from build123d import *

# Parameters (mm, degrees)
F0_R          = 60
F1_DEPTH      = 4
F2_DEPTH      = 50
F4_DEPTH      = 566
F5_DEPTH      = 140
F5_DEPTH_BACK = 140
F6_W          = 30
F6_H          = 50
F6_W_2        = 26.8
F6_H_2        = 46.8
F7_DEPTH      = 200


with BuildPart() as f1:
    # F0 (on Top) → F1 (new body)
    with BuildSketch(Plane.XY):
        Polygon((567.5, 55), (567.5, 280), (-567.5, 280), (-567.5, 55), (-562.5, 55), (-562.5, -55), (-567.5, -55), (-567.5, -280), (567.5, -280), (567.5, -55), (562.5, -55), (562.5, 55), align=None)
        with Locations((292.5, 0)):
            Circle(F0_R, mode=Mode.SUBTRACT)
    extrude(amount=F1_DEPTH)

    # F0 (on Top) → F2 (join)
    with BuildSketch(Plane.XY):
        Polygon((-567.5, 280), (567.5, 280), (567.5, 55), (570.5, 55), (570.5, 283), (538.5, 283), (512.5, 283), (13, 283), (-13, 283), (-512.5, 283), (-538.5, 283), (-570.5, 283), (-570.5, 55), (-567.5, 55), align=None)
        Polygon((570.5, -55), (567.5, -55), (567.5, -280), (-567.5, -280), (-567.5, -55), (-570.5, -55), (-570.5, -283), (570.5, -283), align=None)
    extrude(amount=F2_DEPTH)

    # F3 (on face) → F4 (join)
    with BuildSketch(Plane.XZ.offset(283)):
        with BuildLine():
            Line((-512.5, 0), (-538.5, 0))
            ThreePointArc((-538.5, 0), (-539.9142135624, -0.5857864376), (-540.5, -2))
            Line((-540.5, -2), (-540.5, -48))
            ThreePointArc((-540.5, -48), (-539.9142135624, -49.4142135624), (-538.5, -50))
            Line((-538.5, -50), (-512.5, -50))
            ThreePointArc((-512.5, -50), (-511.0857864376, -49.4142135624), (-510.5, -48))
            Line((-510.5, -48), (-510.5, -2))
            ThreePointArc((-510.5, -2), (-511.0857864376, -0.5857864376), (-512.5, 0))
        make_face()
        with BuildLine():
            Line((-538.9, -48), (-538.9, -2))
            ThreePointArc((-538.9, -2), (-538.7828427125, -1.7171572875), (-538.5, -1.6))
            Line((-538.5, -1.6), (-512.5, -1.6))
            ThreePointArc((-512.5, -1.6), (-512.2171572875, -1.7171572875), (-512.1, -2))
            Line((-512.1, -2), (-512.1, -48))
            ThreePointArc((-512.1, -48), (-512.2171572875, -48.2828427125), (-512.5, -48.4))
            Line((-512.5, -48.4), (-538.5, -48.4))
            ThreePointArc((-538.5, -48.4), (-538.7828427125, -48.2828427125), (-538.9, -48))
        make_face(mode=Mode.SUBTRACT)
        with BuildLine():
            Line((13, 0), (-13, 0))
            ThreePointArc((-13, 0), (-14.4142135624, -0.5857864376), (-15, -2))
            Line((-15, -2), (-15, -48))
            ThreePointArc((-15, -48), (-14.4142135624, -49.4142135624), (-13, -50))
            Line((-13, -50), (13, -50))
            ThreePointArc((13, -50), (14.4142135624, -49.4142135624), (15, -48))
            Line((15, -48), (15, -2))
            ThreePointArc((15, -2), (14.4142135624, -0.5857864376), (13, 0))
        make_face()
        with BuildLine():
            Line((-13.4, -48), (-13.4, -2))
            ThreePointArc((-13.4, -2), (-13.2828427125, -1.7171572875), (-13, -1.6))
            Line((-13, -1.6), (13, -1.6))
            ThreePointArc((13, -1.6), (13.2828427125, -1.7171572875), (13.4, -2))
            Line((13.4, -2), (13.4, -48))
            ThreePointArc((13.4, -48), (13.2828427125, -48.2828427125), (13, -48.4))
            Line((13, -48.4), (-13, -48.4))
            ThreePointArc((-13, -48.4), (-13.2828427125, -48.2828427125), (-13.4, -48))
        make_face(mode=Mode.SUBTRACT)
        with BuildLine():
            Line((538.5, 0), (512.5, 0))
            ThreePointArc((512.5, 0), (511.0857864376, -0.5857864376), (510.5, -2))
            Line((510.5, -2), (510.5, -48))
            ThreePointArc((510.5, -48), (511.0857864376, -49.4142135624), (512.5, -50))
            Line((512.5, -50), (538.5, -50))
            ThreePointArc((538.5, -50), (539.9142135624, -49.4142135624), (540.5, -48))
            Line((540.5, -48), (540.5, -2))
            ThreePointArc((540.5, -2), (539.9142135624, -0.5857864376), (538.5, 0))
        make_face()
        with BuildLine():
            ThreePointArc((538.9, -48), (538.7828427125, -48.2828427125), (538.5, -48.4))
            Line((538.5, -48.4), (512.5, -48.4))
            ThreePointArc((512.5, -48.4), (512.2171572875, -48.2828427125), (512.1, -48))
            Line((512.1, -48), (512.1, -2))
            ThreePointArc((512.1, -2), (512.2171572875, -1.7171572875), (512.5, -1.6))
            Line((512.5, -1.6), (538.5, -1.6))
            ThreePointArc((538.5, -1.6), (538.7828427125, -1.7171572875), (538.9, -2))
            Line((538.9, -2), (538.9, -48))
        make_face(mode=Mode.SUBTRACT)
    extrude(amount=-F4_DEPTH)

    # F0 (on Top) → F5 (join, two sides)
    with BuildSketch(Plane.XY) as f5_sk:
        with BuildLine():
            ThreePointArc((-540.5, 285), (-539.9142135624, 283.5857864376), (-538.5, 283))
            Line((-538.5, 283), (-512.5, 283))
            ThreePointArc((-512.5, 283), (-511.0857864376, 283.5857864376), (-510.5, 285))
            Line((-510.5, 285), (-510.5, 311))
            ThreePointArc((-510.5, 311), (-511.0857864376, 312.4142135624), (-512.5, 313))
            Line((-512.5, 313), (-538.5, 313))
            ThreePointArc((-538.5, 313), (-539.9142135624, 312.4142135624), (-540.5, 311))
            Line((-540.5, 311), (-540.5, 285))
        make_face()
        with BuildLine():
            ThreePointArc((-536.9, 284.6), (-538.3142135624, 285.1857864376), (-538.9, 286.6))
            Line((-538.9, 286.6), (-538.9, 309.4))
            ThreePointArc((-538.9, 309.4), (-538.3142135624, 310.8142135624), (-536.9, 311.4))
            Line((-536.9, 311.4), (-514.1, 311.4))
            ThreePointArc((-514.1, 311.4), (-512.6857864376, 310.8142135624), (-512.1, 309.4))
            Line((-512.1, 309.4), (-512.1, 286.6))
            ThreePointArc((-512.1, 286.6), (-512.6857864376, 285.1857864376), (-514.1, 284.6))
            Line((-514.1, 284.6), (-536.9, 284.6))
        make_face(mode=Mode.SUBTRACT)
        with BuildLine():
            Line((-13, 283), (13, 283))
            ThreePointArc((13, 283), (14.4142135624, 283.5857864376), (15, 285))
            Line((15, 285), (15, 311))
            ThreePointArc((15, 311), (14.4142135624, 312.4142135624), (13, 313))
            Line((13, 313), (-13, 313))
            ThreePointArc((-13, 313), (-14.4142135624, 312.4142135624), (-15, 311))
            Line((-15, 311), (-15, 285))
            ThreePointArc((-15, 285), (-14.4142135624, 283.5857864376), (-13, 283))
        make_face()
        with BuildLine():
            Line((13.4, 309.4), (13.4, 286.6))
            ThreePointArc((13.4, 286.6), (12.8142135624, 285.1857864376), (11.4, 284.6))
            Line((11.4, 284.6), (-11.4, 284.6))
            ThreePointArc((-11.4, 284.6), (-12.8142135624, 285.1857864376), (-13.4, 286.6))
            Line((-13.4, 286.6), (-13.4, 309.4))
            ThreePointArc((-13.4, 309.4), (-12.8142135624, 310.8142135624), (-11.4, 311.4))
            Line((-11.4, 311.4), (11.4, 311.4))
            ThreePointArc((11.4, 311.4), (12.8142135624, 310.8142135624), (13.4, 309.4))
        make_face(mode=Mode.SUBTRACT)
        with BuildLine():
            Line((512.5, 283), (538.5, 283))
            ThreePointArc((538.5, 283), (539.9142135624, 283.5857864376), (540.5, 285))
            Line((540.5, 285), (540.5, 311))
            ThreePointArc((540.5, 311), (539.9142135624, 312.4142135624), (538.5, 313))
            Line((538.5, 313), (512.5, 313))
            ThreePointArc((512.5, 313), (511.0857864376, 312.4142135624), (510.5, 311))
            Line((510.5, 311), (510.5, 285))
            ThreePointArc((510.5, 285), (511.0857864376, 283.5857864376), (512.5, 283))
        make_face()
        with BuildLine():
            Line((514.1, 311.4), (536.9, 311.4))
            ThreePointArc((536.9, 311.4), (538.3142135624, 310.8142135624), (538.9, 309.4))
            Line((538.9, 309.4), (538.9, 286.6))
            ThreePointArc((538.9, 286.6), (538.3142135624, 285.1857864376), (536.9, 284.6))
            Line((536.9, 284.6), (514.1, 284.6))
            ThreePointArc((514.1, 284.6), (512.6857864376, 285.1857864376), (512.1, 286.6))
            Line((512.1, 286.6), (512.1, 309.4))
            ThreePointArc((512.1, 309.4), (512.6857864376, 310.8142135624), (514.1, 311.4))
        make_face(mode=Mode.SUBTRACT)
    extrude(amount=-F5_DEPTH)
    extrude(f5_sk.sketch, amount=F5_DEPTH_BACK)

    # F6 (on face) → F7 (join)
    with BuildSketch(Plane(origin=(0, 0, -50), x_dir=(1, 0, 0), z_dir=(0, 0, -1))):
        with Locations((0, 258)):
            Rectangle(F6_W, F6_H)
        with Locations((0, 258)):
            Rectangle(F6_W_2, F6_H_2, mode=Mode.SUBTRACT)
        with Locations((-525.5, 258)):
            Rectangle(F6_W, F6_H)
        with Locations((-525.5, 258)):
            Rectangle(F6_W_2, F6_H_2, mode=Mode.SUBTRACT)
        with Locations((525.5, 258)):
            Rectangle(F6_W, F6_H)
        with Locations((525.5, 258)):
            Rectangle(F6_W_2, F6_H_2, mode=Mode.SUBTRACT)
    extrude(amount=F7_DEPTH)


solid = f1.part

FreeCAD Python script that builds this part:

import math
import FreeCAD as App
import Part
import Sketcher
from FreeCAD import Vector
Q = App.Units.Quantity

doc = App.newDocument("Part")
body = doc.addObject("PartDesign::Body", "Body")

# Sketch on XY plane
sketch1 = body.newObject("Sketcher::SketchObject", "Sketch")
sketch1.AttachmentSupport = (doc.getObject("XY_Plane"), [""])
sketch1.MapMode = "FlatFace"
sketch1.addGeometry(Part.LineSegment(Vector(568, 55, 0), Vector(568, 280, 0)), False)
sketch1.addGeometry(Part.LineSegment(Vector(568, 280, 0), Vector(-568, 280, 0)), False)
sketch1.addGeometry(Part.LineSegment(Vector(-568, 280, 0), Vector(-568, 55, 0)), False)
sketch1.addGeometry(Part.LineSegment(Vector(-568, 55, 0), Vector(-562, 55, 0)), False)
sketch1.addGeometry(Part.LineSegment(Vector(-562, 55, 0), Vector(-562, -55, 0)), False)
sketch1.addGeometry(Part.LineSegment(Vector(-562, -55, 0), Vector(-568, -55, 0)), False)
sketch1.addGeometry(Part.LineSegment(Vector(-568, -55, 0), Vector(-568, -280, 0)), False)
sketch1.addGeometry(Part.LineSegment(Vector(-568, -280, 0), Vector(568, -280, 0)), False)
sketch1.addGeometry(Part.LineSegment(Vector(568, -280, 0), Vector(568, -55, 0)), False)
sketch1.addGeometry(Part.LineSegment(Vector(568, -55, 0), Vector(562, -55, 0)), False)
sketch1.addGeometry(Part.LineSegment(Vector(562, -55, 0), Vector(562, 55, 0)), False)
sketch1.addGeometry(Part.LineSegment(Vector(562, 55, 0), Vector(568, 55, 0)), False)
sketch1.addGeometry(Part.Circle(Vector(292, 0, 0), Vector(0, 0, 1), 60), False)
sketch1.addConstraint(Sketcher.Constraint("Coincident", 0, 2, 1, 1))
sketch1.addConstraint(Sketcher.Constraint("Coincident", 1, 2, 2, 1))
sketch1.addConstraint(Sketcher.Constraint("Coincident", 2, 2, 3, 1))
sketch1.addConstraint(Sketcher.Constraint("Coincident", 3, 2, 4, 1))
sketch1.addConstraint(Sketcher.Constraint("Coincident", 4, 2, 5, 1))
sketch1.addConstraint(Sketcher.Constraint("Coincident", 5, 2, 6, 1))
sketch1.addConstraint(Sketcher.Constraint("Coincident", 6, 2, 7, 1))
sketch1.addConstraint(Sketcher.Constraint("Coincident", 7, 2, 8, 1))
sketch1.addConstraint(Sketcher.Constraint("Coincident", 8, 2, 9, 1))
sketch1.addConstraint(Sketcher.Constraint("Coincident", 9, 2, 10, 1))
sketch1.addConstraint(Sketcher.Constraint("Coincident", 10, 2, 11, 1))
sketch1.addConstraint(Sketcher.Constraint("Coincident", 11, 2, 0, 1))
sketch1.addConstraint(Sketcher.Constraint("Vertical", 0))
sketch1.addConstraint(Sketcher.Constraint("Horizontal", 1))
sketch1.addConstraint(Sketcher.Constraint("Vertical", 2))
sketch1.addConstraint(Sketcher.Constraint("Horizontal", 3))
sketch1.addConstraint(Sketcher.Constraint("Vertical", 4))
sketch1.addConstraint(Sketcher.Constraint("Horizontal", 5))
sketch1.addConstraint(Sketcher.Constraint("Vertical", 6))
sketch1.addConstraint(Sketcher.Constraint("Horizontal", 7))
sketch1.addConstraint(Sketcher.Constraint("Vertical", 8))
sketch1.addConstraint(Sketcher.Constraint("Horizontal", 9))
sketch1.addConstraint(Sketcher.Constraint("Vertical", 10))
sketch1.addConstraint(Sketcher.Constraint("Horizontal", 11))
sketch1.addConstraint(Sketcher.Constraint("Symmetric", 0, 2, 6, 2, -1, 1))
sketch1.addConstraint(Sketcher.Constraint("Symmetric", 2, 2, 8, 2, -1, 1))
sketch1.addConstraint(Sketcher.Constraint("Symmetric", 4, 2, 10, 2, -1, 1))
sketch1.addConstraint(Sketcher.Constraint("Symmetric", 5, 2, 8, 2, -2))
sketch1.addConstraint(Sketcher.Constraint("PointOnObject", 12, 3, -1))
sketch1.addConstraint(Sketcher.Constraint("Diameter", 12, Q("120 mm")))
sketch1.addConstraint(Sketcher.Constraint("DistanceX", 1, 2, 1, 1, Q("1135 mm")))
sketch1.addConstraint(Sketcher.Constraint("DistanceX", 3, 1, 3, 2, Q("5 mm")))
sketch1.addConstraint(Sketcher.Constraint("DistanceY", 0, 1, 0, 2, Q("225 mm")))
sketch1.addConstraint(Sketcher.Constraint("DistanceY", 4, 2, 4, 1, Q("110 mm")))
sketch1.addConstraint(Sketcher.Constraint("DistanceX", 12, 3, 0, 2, Q("275 mm")))
pad1 = body.newObject("PartDesign::Pad", "Pad")
pad1.Profile = sketch1
pad1.Length = 4

# Sketch on XY plane
sketch2 = body.newObject("Sketcher::SketchObject", "Sketch001")
sketch2.AttachmentSupport = (doc.getObject("XY_Plane"), [""])
sketch2.MapMode = "FlatFace"
sketch2.addGeometry(Part.LineSegment(Vector(-567.5, 280, 0), Vector(567.5, 280, 0)), False)
sketch2.addGeometry(Part.LineSegment(Vector(567.5, 280, 0), Vector(567.5, 55, 0)), False)
sketch2.addGeometry(Part.LineSegment(Vector(567.5, 55, 0), Vector(570.5, 55, 0)), False)
sketch2.addGeometry(Part.LineSegment(Vector(570.5, 55, 0), Vector(570.5, 283, 0)), False)
sketch2.addGeometry(Part.LineSegment(Vector(570.5, 283, 0), Vector(-570.5, 283, 0)), False)
sketch2.addGeometry(Part.LineSegment(Vector(-570.5, 283, 0), Vector(-570.5, 55, 0)), False)
sketch2.addGeometry(Part.LineSegment(Vector(-570.5, 55, 0), Vector(-567.5, 55, 0)), False)
sketch2.addGeometry(Part.LineSegment(Vector(-567.5, 55, 0), Vector(-567.5, 280, 0)), False)
sketch2.addGeometry(Part.LineSegment(Vector(570.5, -55, 0), Vector(567.5, -55, 0)), False)
sketch2.addGeometry(Part.LineSegment(Vector(567.5, -55, 0), Vector(567.5, -280, 0)), False)
sketch2.addGeometry(Part.LineSegment(Vector(567.5, -280, 0), Vector(-567.5, -280, 0)), False)
sketch2.addGeometry(Part.LineSegment(Vector(-567.5, -280, 0), Vector(-567.5, -55, 0)), False)
sketch2.addGeometry(Part.LineSegment(Vector(-567.5, -55, 0), Vector(-570.5, -55, 0)), False)
sketch2.addGeometry(Part.LineSegment(Vector(-570.5, -55, 0), Vector(-570.5, -283, 0)), False)
sketch2.addGeometry(Part.LineSegment(Vector(-570.5, -283, 0), Vector(570.5, -283, 0)), False)
sketch2.addGeometry(Part.LineSegment(Vector(570.5, -283, 0), Vector(570.5, -55, 0)), False)
sketch2.addConstraint(Sketcher.Constraint("Coincident", 0, 2, 1, 1))
sketch2.addConstraint(Sketcher.Constraint("Coincident", 1, 2, 2, 1))
sketch2.addConstraint(Sketcher.Constraint("Coincident", 2, 2, 3, 1))
sketch2.addConstraint(Sketcher.Constraint("Coincident", 3, 2, 4, 1))
sketch2.addConstraint(Sketcher.Constraint("Coincident", 4, 2, 5, 1))
sketch2.addConstraint(Sketcher.Constraint("Coincident", 5, 2, 6, 1))
sketch2.addConstraint(Sketcher.Constraint("Coincident", 6, 2, 7, 1))
sketch2.addConstraint(Sketcher.Constraint("Coincident", 7, 2, 0, 1))
sketch2.addConstraint(Sketcher.Constraint("Coincident", 8, 2, 9, 1))
sketch2.addConstraint(Sketcher.Constraint("Coincident", 9, 2, 10, 1))
sketch2.addConstraint(Sketcher.Constraint("Coincident", 10, 2, 11, 1))
sketch2.addConstraint(Sketcher.Constraint("Coincident", 11, 2, 12, 1))
sketch2.addConstraint(Sketcher.Constraint("Coincident", 12, 2, 13, 1))
sketch2.addConstraint(Sketcher.Constraint("Coincident", 13, 2, 14, 1))
sketch2.addConstraint(Sketcher.Constraint("Coincident", 14, 2, 15, 1))
sketch2.addConstraint(Sketcher.Constraint("Coincident", 15, 2, 8, 1))
sketch2.addConstraint(Sketcher.Constraint("Horizontal", 0))
sketch2.addConstraint(Sketcher.Constraint("Vertical", 1))
sketch2.addConstraint(Sketcher.Constraint("Horizontal", 2))
sketch2.addConstraint(Sketcher.Constraint("Vertical", 3))
sketch2.addConstraint(Sketcher.Constraint("Horizontal", 4))
sketch2.addConstraint(Sketcher.Constraint("Vertical", 5))
sketch2.addConstraint(Sketcher.Constraint("Horizontal", 6))
sketch2.addConstraint(Sketcher.Constraint("Vertical", 7))
sketch2.addConstraint(Sketcher.Constraint("Horizontal", 8))
sketch2.addConstraint(Sketcher.Constraint("Vertical", 9))
sketch2.addConstraint(Sketcher.Constraint("Horizontal", 10))
sketch2.addConstraint(Sketcher.Constraint("Vertical", 11))
sketch2.addConstraint(Sketcher.Constraint("Horizontal", 12))
sketch2.addConstraint(Sketcher.Constraint("Vertical", 13))
sketch2.addConstraint(Sketcher.Constraint("Horizontal", 14))
sketch2.addConstraint(Sketcher.Constraint("Vertical", 15))
sketch2.addConstraint(Sketcher.Constraint("Symmetric", 6, 2, 8, 2, -1, 1))
sketch2.addConstraint(Sketcher.Constraint("Symmetric", 0, 2, 10, 2, -1, 1))
sketch2.addConstraint(Sketcher.Constraint("Symmetric", 2, 2, 12, 2, -1, 1))
sketch2.addConstraint(Sketcher.Constraint("Symmetric", 4, 2, 14, 2, -1, 1))
sketch2.addConstraint(Sketcher.Constraint("Symmetric", 2, 2, 5, 2, -2))
sketch2.addConstraint(Sketcher.Constraint("Vertical", 1, 2, 8, 2))
sketch2.addConstraint(Sketcher.Constraint("DistanceX", 0, 1, 0, 2, Q("1135 mm")))
sketch2.addConstraint(Sketcher.Constraint("DistanceX", 2, 1, 2, 2, Q("3 mm")))
sketch2.addConstraint(Sketcher.Constraint("DistanceY", 1, 2, 1, 1, Q("225 mm")))
sketch2.addConstraint(Sketcher.Constraint("DistanceY", 3, 1, 3, 2, Q("228 mm")))
sketch2.addConstraint(Sketcher.Constraint("DistanceY", -1, 1, 0, 2, Q("280 mm")))
pad2 = body.newObject("PartDesign::Pad", "Pad001")
pad2.Profile = sketch2
pad2.Length = 50

# Sketch on XZ plane
sketch3 = body.newObject("Sketcher::SketchObject", "Sketch002")
sketch3.AttachmentSupport = (doc.getObject("XZ_Plane"), [""])
sketch3.MapMode = "FlatFace"
sketch3.AttachmentOffset = App.Placement(Vector(0, 0, 283), App.Rotation())
sketch3.addGeometry(Part.LineSegment(Vector(-512.5, 0, 0), Vector(-538.5, 0, 0)), False)
sketch3.addGeometry(Part.ArcOfCircle(Part.Circle(Vector(-538.5, -2, 0), Vector(0, 0, 1), 2), math.radians(90), math.radians(180)), False)
sketch3.addGeometry(Part.LineSegment(Vector(-540.5, -2, 0), Vector(-540.5, -48, 0)), False)
sketch3.addGeometry(Part.ArcOfCircle(Part.Circle(Vector(-538.5, -48, 0), Vector(0, 0, 1), 2), math.radians(180), math.radians(270)), False)
sketch3.addGeometry(Part.LineSegment(Vector(-538.5, -50, 0), Vector(-512.5, -50, 0)), False)
sketch3.addGeometry(Part.ArcOfCircle(Part.Circle(Vector(-512.5, -48, 0), Vector(0, 0, 1), 2), math.radians(-90), math.radians(0)), False)
sketch3.addGeometry(Part.LineSegment(Vector(-510.5, -48, 0), Vector(-510.5, -2, 0)), False)
sketch3.addGeometry(Part.ArcOfCircle(Part.Circle(Vector(-512.5, -2, 0), Vector(0, 0, 1), 2), math.radians(0), math.radians(90)), False)
sketch3.addGeometry(Part.ArcOfCircle(Part.Circle(Vector(-538.5, -48, 0), Vector(0, 0, 1), 0.4), math.radians(180), math.radians(270)), False)
sketch3.addGeometry(Part.LineSegment(Vector(-538.9, -48, 0), Vector(-538.9, -2, 0)), False)
sketch3.addGeometry(Part.ArcOfCircle(Part.Circle(Vector(-538.5, -2, 0), Vector(0, 0, 1), 0.4), math.radians(90), math.radians(180)), False)
sketch3.addGeometry(Part.LineSegment(Vector(-538.5, -1.6, 0), Vector(-512.5, -1.6, 0)), False)
sketch3.addGeometry(Part.ArcOfCircle(Part.Circle(Vector(-512.5, -2, 0), Vector(0, 0, 1), 0.4), math.radians(0), math.radians(90)), False)
sketch3.addGeometry(Part.LineSegment(Vector(-512.1, -2, 0), Vector(-512.1, -48, 0)), False)
sketch3.addGeometry(Part.ArcOfCircle(Part.Circle(Vector(-512.5, -48, 0), Vector(0, 0, 1), 0.4), math.radians(-90), math.radians(0)), False)
sketch3.addGeometry(Part.LineSegment(Vector(-512.5, -48.4, 0), Vector(-538.5, -48.4, 0)), False)
sketch3.addGeometry(Part.LineSegment(Vector(13, 0, 0), Vector(-13, 0, 0)), False)
sketch3.addGeometry(Part.ArcOfCircle(Part.Circle(Vector(-13, -2, 0), Vector(0, 0, 1), 2), math.radians(90), math.radians(180)), False)
sketch3.addGeometry(Part.LineSegment(Vector(-15, -2, 0), Vector(-15, -48, 0)), False)
sketch3.addGeometry(Part.ArcOfCircle(Part.Circle(Vector(-13, -48, 0), Vector(0, 0, 1), 2), math.radians(180), math.radians(270)), False)
sketch3.addGeometry(Part.LineSegment(Vector(-13, -50, 0), Vector(13, -50, 0)), False)
sketch3.addGeometry(Part.ArcOfCircle(Part.Circle(Vector(13, -48, 0), Vector(0, 0, 1), 2), math.radians(-90), math.radians(0)), False)
sketch3.addGeometry(Part.LineSegment(Vector(15, -48, 0), Vector(15, -2, 0)), False)
sketch3.addGeometry(Part.ArcOfCircle(Part.Circle(Vector(13, -2, 0), Vector(0, 0, 1), 2), math.radians(0), math.radians(90)), False)
sketch3.addGeometry(Part.ArcOfCircle(Part.Circle(Vector(-13, -48, 0), Vector(0, 0, 1), 0.4), math.radians(180), math.radians(270)), False)
sketch3.addGeometry(Part.LineSegment(Vector(-13.4, -48, 0), Vector(-13.4, -2, 0)), False)
sketch3.addGeometry(Part.ArcOfCircle(Part.Circle(Vector(-13, -2, 0), Vector(0, 0, 1), 0.4), math.radians(90), math.radians(180)), False)
sketch3.addGeometry(Part.LineSegment(Vector(-13, -1.6, 0), Vector(13, -1.6, 0)), False)
sketch3.addGeometry(Part.ArcOfCircle(Part.Circle(Vector(13, -2, 0), Vector(0, 0, 1), 0.4), math.radians(0), math.radians(90)), False)
sketch3.addGeometry(Part.LineSegment(Vector(13.4, -2, 0), Vector(13.4, -48, 0)), False)
sketch3.addGeometry(Part.ArcOfCircle(Part.Circle(Vector(13, -48, 0), Vector(0, 0, 1), 0.4), math.radians(-90), math.radians(0)), False)
sketch3.addGeometry(Part.LineSegment(Vector(13, -48.4, 0), Vector(-13, -48.4, 0)), False)
sketch3.addGeometry(Part.LineSegment(Vector(538.5, 0, 0), Vector(512.5, 0, 0)), False)
sketch3.addGeometry(Part.ArcOfCircle(Part.Circle(Vector(512.5, -2, 0), Vector(0, 0, 1), 2), math.radians(90), math.radians(180)), False)
sketch3.addGeometry(Part.LineSegment(Vector(510.5, -2, 0), Vector(510.5, -48, 0)), False)
sketch3.addGeometry(Part.ArcOfCircle(Part.Circle(Vector(512.5, -48, 0), Vector(0, 0, 1), 2), math.radians(180), math.radians(270)), False)
sketch3.addGeometry(Part.LineSegment(Vector(512.5, -50, 0), Vector(538.5, -50, 0)), False)
sketch3.addGeometry(Part.ArcOfCircle(Part.Circle(Vector(538.5, -48, 0), Vector(0, 0, 1), 2), math.radians(-90), math.radians(0)), False)
sketch3.addGeometry(Part.LineSegment(Vector(540.5, -48, 0), Vector(540.5, -2, 0)), False)
sketch3.addGeometry(Part.ArcOfCircle(Part.Circle(Vector(538.5, -2, 0), Vector(0, 0, 1), 2), math.radians(0), math.radians(90)), False)
sketch3.addGeometry(Part.LineSegment(Vector(538.9, -2, 0), Vector(538.9, -48, 0)), False)
sketch3.addGeometry(Part.ArcOfCircle(Part.Circle(Vector(538.5, -48, 0), Vector(0, 0, 1), 0.4), math.radians(-90), math.radians(0)), False)
sketch3.addGeometry(Part.LineSegment(Vector(538.5, -48.4, 0), Vector(512.5, -48.4, 0)), False)
sketch3.addGeometry(Part.ArcOfCircle(Part.Circle(Vector(512.5, -48, 0), Vector(0, 0, 1), 0.4), math.radians(180), math.radians(270)), False)
sketch3.addGeometry(Part.LineSegment(Vector(512.1, -48, 0), Vector(512.1, -2, 0)), False)
sketch3.addGeometry(Part.ArcOfCircle(Part.Circle(Vector(512.5, -2, 0), Vector(0, 0, 1), 0.4), math.radians(90), math.radians(180)), False)
sketch3.addGeometry(Part.LineSegment(Vector(512.5, -1.6, 0), Vector(538.5, -1.6, 0)), False)
sketch3.addGeometry(Part.ArcOfCircle(Part.Circle(Vector(538.5, -2, 0), Vector(0, 0, 1), 0.4), math.radians(0), math.radians(90)), False)
sketch3.addConstraint(Sketcher.Constraint("Tangent", 0, 2, 1, 1))
sketch3.addConstraint(Sketcher.Constraint("Tangent", 1, 2, 2, 1))
sketch3.addConstraint(Sketcher.Constraint("Tangent", 2, 2, 3, 1))
sketch3.addConstraint(Sketcher.Constraint("Tangent", 3, 2, 4, 1))
sketch3.addConstraint(Sketcher.Constraint("Tangent", 4, 2, 5, 1))
sketch3.addConstraint(Sketcher.Constraint("Tangent", 5, 2, 6, 1))
sketch3.addConstraint(Sketcher.Constraint("Tangent", 6, 2, 7, 1))
sketch3.addConstraint(Sketcher.Constraint("Tangent", 7, 2, 0, 1))
sketch3.addConstraint(Sketcher.Constraint("Tangent", 8, 1, 9, 1))
sketch3.addConstraint(Sketcher.Constraint("Tangent", 9, 2, 10, 2))
sketch3.addConstraint(Sketcher.Constraint("Tangent", 10, 1, 11, 1))
sketch3.addConstraint(Sketcher.Constraint("Tangent", 11, 2, 12, 2))
sketch3.addConstraint(Sketcher.Constraint("Tangent", 12, 1, 13, 1))
sketch3.addConstraint(Sketcher.Constraint("Tangent", 13, 2, 14, 2))
sketch3.addConstraint(Sketcher.Constraint("Tangent", 14, 1, 15, 1))
sketch3.addConstraint(Sketcher.Constraint("Tangent", 15, 2, 8, 2))
sketch3.addConstraint(Sketcher.Constraint("Tangent", 16, 2, 17, 1))
sketch3.addConstraint(Sketcher.Constraint("Tangent", 17, 2, 18, 1))
sketch3.addConstraint(Sketcher.Constraint("Tangent", 18, 2, 19, 1))
sketch3.addConstraint(Sketcher.Constraint("Tangent", 19, 2, 20, 1))
sketch3.addConstraint(Sketcher.Constraint("Tangent", 20, 2, 21, 1))
sketch3.addConstraint(Sketcher.Constraint("Tangent", 21, 2, 22, 1))
sketch3.addConstraint(Sketcher.Constraint("Tangent", 22, 2, 23, 1))
sketch3.addConstraint(Sketcher.Constraint("Tangent", 23, 2, 16, 1))
sketch3.addConstraint(Sketcher.Constraint("Tangent", 24, 1, 25, 1))
sketch3.addConstraint(Sketcher.Constraint("Tangent", 25, 2, 26, 2))
sketch3.addConstraint(Sketcher.Constraint("Tangent", 26, 1, 27, 1))
sketch3.addConstraint(Sketcher.Constraint("Tangent", 27, 2, 28, 2))
sketch3.addConstraint(Sketcher.Constraint("Tangent", 28, 1, 29, 1))
sketch3.addConstraint(Sketcher.Constraint("Tangent", 29, 2, 30, 2))
sketch3.addConstraint(Sketcher.Constraint("Tangent", 30, 1, 31, 1))
sketch3.addConstraint(Sketcher.Constraint("Tangent", 31, 2, 24, 2))
sketch3.addConstraint(Sketcher.Constraint("Tangent", 32, 2, 33, 1))
sketch3.addConstraint(Sketcher.Constraint("Tangent", 33, 2, 34, 1))
sketch3.addConstraint(Sketcher.Constraint("Tangent", 34, 2, 35, 1))
sketch3.addConstraint(Sketcher.Constraint("Tangent", 35, 2, 36, 1))
sketch3.addConstraint(Sketcher.Constraint("Tangent", 36, 2, 37, 1))
sketch3.addConstraint(Sketcher.Constraint("Tangent", 37, 2, 38, 1))
sketch3.addConstraint(Sketcher.Constraint("Tangent", 38, 2, 39, 1))
sketch3.addConstraint(Sketcher.Constraint("Tangent", 39, 2, 32, 1))
sketch3.addConstraint(Sketcher.Constraint("Tangent", 40, 2, 41, 2))
sketch3.addConstraint(Sketcher.Constraint("Tangent", 41, 1, 42, 1))
sketch3.addConstraint(Sketcher.Constraint("Tangent", 42, 2, 43, 2))
sketch3.addConstraint(Sketcher.Constraint("Tangent", 43, 1, 44, 1))
sketch3.addConstraint(Sketcher.Constraint("Tangent", 44, 2, 45, 2))
sketch3.addConstraint(Sketcher.Constraint("Tangent", 45, 1, 46, 1))
sketch3.addConstraint(Sketcher.Constraint("Tangent", 46, 2, 47, 2))
sketch3.addConstraint(Sketcher.Constraint("Tangent", 47, 1, 40, 1))
sketch3.addConstraint(Sketcher.Constraint("Horizontal", 0))
sketch3.addConstraint(Sketcher.Constraint("Vertical", 2))
sketch3.addConstraint(Sketcher.Constraint("Horizontal", 4))
sketch3.addConstraint(Sketcher.Constraint("Vertical", 6))
sketch3.addConstraint(Sketcher.Constraint("Vertical", 9))
sketch3.addConstraint(Sketcher.Constraint("Horizontal", 11))
sketch3.addConstraint(Sketcher.Constraint("Vertical", 13))
sketch3.addConstraint(Sketcher.Constraint("Horizontal", 15))
sketch3.addConstraint(Sketcher.Constraint("Horizontal", 16))
sketch3.addConstraint(Sketcher.Constraint("Vertical", 18))
sketch3.addConstraint(Sketcher.Constraint("Horizontal", 20))
sketch3.addConstraint(Sketcher.Constraint("Vertical", 22))
sketch3.addConstraint(Sketcher.Constraint("Vertical", 25))
sketch3.addConstraint(Sketcher.Constraint("Horizontal", 27))
sketch3.addConstraint(Sketcher.Constraint("Vertical", 29))
sketch3.addConstraint(Sketcher.Constraint("Horizontal", 31))
sketch3.addConstraint(Sketcher.Constraint("Horizontal", 32))
sketch3.addConstraint(Sketcher.Constraint("Vertical", 34))
sketch3.addConstraint(Sketcher.Constraint("Horizontal", 36))
sketch3.addConstraint(Sketcher.Constraint("Vertical", 38))
sketch3.addConstraint(Sketcher.Constraint("Vertical", 40))
sketch3.addConstraint(Sketcher.Constraint("Horizontal", 42))
sketch3.addConstraint(Sketcher.Constraint("Vertical", 44))
sketch3.addConstraint(Sketcher.Constraint("Horizontal", 46))
sketch3.addConstraint(Sketcher.Constraint("Coincident", 8, 3, 3, 3))
sketch3.addConstraint(Sketcher.Constraint("Coincident", 10, 3, 1, 3))
sketch3.addConstraint(Sketcher.Constraint("Coincident", 12, 3, 7, 3))
sketch3.addConstraint(Sketcher.Constraint("Coincident", 24, 3, 19, 3))
sketch3.addConstraint(Sketcher.Constraint("Coincident", 26, 3, 17, 3))
sketch3.addConstraint(Sketcher.Constraint("Coincident", 28, 3, 23, 3))
sketch3.addConstraint(Sketcher.Constraint("Coincident", 41, 3, 37, 3))
sketch3.addConstraint(Sketcher.Constraint("Coincident", 43, 3, 35, 3))
sketch3.addConstraint(Sketcher.Constraint("Coincident", 45, 3, 33, 3))
sketch3.addConstraint(Sketcher.Constraint("Equal", 1, 3))
sketch3.addConstraint(Sketcher.Constraint("Equal", 3, 5))
sketch3.addConstraint(Sketcher.Constraint("Equal", 5, 7))
sketch3.addConstraint(Sketcher.Constraint("Equal", 12, 14))
sketch3.addConstraint(Sketcher.Constraint("Equal", 7, 17))
sketch3.addConstraint(Sketcher.Constraint("Equal", 17, 19))
sketch3.addConstraint(Sketcher.Constraint("Equal", 19, 21))
sketch3.addConstraint(Sketcher.Constraint("Equal", 21, 23))
sketch3.addConstraint(Sketcher.Constraint("Equal", 14, 24))
sketch3.addConstraint(Sketcher.Constraint("Equal", 28, 30))
sketch3.addConstraint(Sketcher.Constraint("Equal", 23, 33))
sketch3.addConstraint(Sketcher.Constraint("Equal", 33, 35))
sketch3.addConstraint(Sketcher.Constraint("Equal", 35, 37))
sketch3.addConstraint(Sketcher.Constraint("Equal", 37, 39))
sketch3.addConstraint(Sketcher.Constraint("Equal", 30, 41))
sketch3.addConstraint(Sketcher.Constraint("Equal", 45, 47))
sketch3.addConstraint(Sketcher.Constraint("Symmetric", 16, 2, 23, 2, -1, 1))
sketch3.addConstraint(Sketcher.Constraint("Symmetric", 7, 2, 32, 2, -1, 1))
sketch3.addConstraint(Sketcher.Constraint("Symmetric", 3, 3, 37, 3, -2))
sketch3.addConstraint(Sketcher.Constraint("PointOnObject", 0, 2, -1))
sketch3.addConstraint(Sketcher.Constraint("Horizontal", 14, 3, 19, 3))
sketch3.addConstraint(Sketcher.Constraint("Equal", 15, 16))
sketch3.addConstraint(Sketcher.Constraint("Radius", 1, Q("2 mm")))
sketch3.addConstraint(Sketcher.Constraint("Radius", 8, Q("0.4 mm")))
sketch3.addConstraint(Sketcher.Constraint("DistanceX", 0, 2, 0, 1, Q("26 mm")))
sketch3.addConstraint(Sketcher.Constraint("DistanceY", 2, 2, 2, 1, Q("46 mm")))
sketch3.addConstraint(Sketcher.Constraint("DistanceX", 1, 3, -1, 1, Q("538.5 mm")))
pad3 = body.newObject("PartDesign::Pad", "Pad002")
pad3.Profile = sketch3
pad3.Length = 566
pad3.Reversed = True

# Sketch on XY plane
sketch4 = body.newObject("Sketcher::SketchObject", "Sketch003")
sketch4.AttachmentSupport = (doc.getObject("XY_Plane"), [""])
sketch4.MapMode = "FlatFace"
sketch4.addGeometry(Part.ArcOfCircle(Part.Circle(Vector(-538.5, 285, 0), Vector(0, 0, 1), 2), math.radians(180), math.radians(270)), False)
sketch4.addGeometry(Part.LineSegment(Vector(-538.5, 283, 0), Vector(-512.5, 283, 0)), False)
sketch4.addGeometry(Part.ArcOfCircle(Part.Circle(Vector(-512.5, 285, 0), Vector(0, 0, 1), 2), math.radians(-90), math.radians(0)), False)
sketch4.addGeometry(Part.LineSegment(Vector(-510.5, 285, 0), Vector(-510.5, 311, 0)), False)
sketch4.addGeometry(Part.ArcOfCircle(Part.Circle(Vector(-512.5, 311, 0), Vector(0, 0, 1), 2), math.radians(0), math.radians(90)), False)
sketch4.addGeometry(Part.LineSegment(Vector(-512.5, 313, 0), Vector(-538.5, 313, 0)), False)
sketch4.addGeometry(Part.ArcOfCircle(Part.Circle(Vector(-538.5, 311, 0), Vector(0, 0, 1), 2), math.radians(90), math.radians(180)), False)
sketch4.addGeometry(Part.LineSegment(Vector(-540.5, 311, 0), Vector(-540.5, 285, 0)), False)
sketch4.addGeometry(Part.LineSegment(Vector(-514.1, 284.6, 0), Vector(-536.9, 284.6, 0)), False)
sketch4.addGeometry(Part.ArcOfCircle(Part.Circle(Vector(-536.9, 286.6, 0), Vector(0, 0, 1), 2), math.radians(180), math.radians(270)), False)
sketch4.addGeometry(Part.LineSegment(Vector(-538.9, 286.6, 0), Vector(-538.9, 309.4, 0)), False)
sketch4.addGeometry(Part.ArcOfCircle(Part.Circle(Vector(-536.9, 309.4, 0), Vector(0, 0, 1), 2), math.radians(90), math.radians(180)), False)
sketch4.addGeometry(Part.LineSegment(Vector(-536.9, 311.4, 0), Vector(-514.1, 311.4, 0)), False)
sketch4.addGeometry(Part.ArcOfCircle(Part.Circle(Vector(-514.1, 309.4, 0), Vector(0, 0, 1), 2), math.radians(0), math.radians(90)), False)
sketch4.addGeometry(Part.LineSegment(Vector(-512.1, 309.4, 0), Vector(-512.1, 286.6, 0)), False)
sketch4.addGeometry(Part.ArcOfCircle(Part.Circle(Vector(-514.1, 286.6, 0), Vector(0, 0, 1), 2), math.radians(-90), math.radians(0)), False)
sketch4.addGeometry(Part.LineSegment(Vector(-13, 283, 0), Vector(13, 283, 0)), False)
sketch4.addGeometry(Part.ArcOfCircle(Part.Circle(Vector(13, 285, 0), Vector(0, 0, 1), 2), math.radians(-90), math.radians(0)), False)
sketch4.addGeometry(Part.LineSegment(Vector(15, 285, 0), Vector(15, 311, 0)), False)
sketch4.addGeometry(Part.ArcOfCircle(Part.Circle(Vector(13, 311, 0), Vector(0, 0, 1), 2), math.radians(0), math.radians(90)), False)
sketch4.addGeometry(Part.LineSegment(Vector(13, 313, 0), Vector(-13, 313, 0)), False)
sketch4.addGeometry(Part.ArcOfCircle(Part.Circle(Vector(-13, 311, 0), Vector(0, 0, 1), 2), math.radians(90), math.radians(180)), False)
sketch4.addGeometry(Part.LineSegment(Vector(-15, 311, 0), Vector(-15, 285, 0)), False)
sketch4.addGeometry(Part.ArcOfCircle(Part.Circle(Vector(-13, 285, 0), Vector(0, 0, 1), 2), math.radians(180), math.radians(270)), False)
sketch4.addGeometry(Part.ArcOfCircle(Part.Circle(Vector(11.4, 309.4, 0), Vector(0, 0, 1), 2), math.radians(0), math.radians(90)), False)
sketch4.addGeometry(Part.LineSegment(Vector(13.4, 309.4, 0), Vector(13.4, 286.6, 0)), False)
sketch4.addGeometry(Part.ArcOfCircle(Part.Circle(Vector(11.4, 286.6, 0), Vector(0, 0, 1), 2), math.radians(-90), math.radians(0)), False)
sketch4.addGeometry(Part.LineSegment(Vector(11.4, 284.6, 0), Vector(-11.4, 284.6, 0)), False)
sketch4.addGeometry(Part.ArcOfCircle(Part.Circle(Vector(-11.4, 286.6, 0), Vector(0, 0, 1), 2), math.radians(180), math.radians(270)), False)
sketch4.addGeometry(Part.LineSegment(Vector(-13.4, 286.6, 0), Vector(-13.4, 309.4, 0)), False)
sketch4.addGeometry(Part.ArcOfCircle(Part.Circle(Vector(-11.4, 309.4, 0), Vector(0, 0, 1), 2), math.radians(90), math.radians(180)), False)
sketch4.addGeometry(Part.LineSegment(Vector(-11.4, 311.4, 0), Vector(11.4, 311.4, 0)), False)
sketch4.addGeometry(Part.LineSegment(Vector(512.5, 283, 0), Vector(538.5, 283, 0)), False)
sketch4.addGeometry(Part.ArcOfCircle(Part.Circle(Vector(538.5, 285, 0), Vector(0, 0, 1), 2), math.radians(-90), math.radians(0)), False)
sketch4.addGeometry(Part.LineSegment(Vector(540.5, 285, 0), Vector(540.5, 311, 0)), False)
sketch4.addGeometry(Part.ArcOfCircle(Part.Circle(Vector(538.5, 311, 0), Vector(0, 0, 1), 2), math.radians(0), math.radians(90)), False)
sketch4.addGeometry(Part.LineSegment(Vector(538.5, 313, 0), Vector(512.5, 313, 0)), False)
sketch4.addGeometry(Part.ArcOfCircle(Part.Circle(Vector(512.5, 311, 0), Vector(0, 0, 1), 2), math.radians(90), math.radians(180)), False)
sketch4.addGeometry(Part.LineSegment(Vector(510.5, 311, 0), Vector(510.5, 285, 0)), False)
sketch4.addGeometry(Part.ArcOfCircle(Part.Circle(Vector(512.5, 285, 0), Vector(0, 0, 1), 2), math.radians(180), math.radians(270)), False)
sketch4.addGeometry(Part.ArcOfCircle(Part.Circle(Vector(514.1, 309.4, 0), Vector(0, 0, 1), 2), math.radians(90), math.radians(180)), False)
sketch4.addGeometry(Part.LineSegment(Vector(514.1, 311.4, 0), Vector(536.9, 311.4, 0)), False)
sketch4.addGeometry(Part.ArcOfCircle(Part.Circle(Vector(536.9, 309.4, 0), Vector(0, 0, 1), 2), math.radians(0), math.radians(90)), False)
sketch4.addGeometry(Part.LineSegment(Vector(538.9, 309.4, 0), Vector(538.9, 286.6, 0)), False)
sketch4.addGeometry(Part.ArcOfCircle(Part.Circle(Vector(536.9, 286.6, 0), Vector(0, 0, 1), 2), math.radians(-90), math.radians(0)), False)
sketch4.addGeometry(Part.LineSegment(Vector(536.9, 284.6, 0), Vector(514.1, 284.6, 0)), False)
sketch4.addGeometry(Part.ArcOfCircle(Part.Circle(Vector(514.1, 286.6, 0), Vector(0, 0, 1), 2), math.radians(180), math.radians(270)), False)
sketch4.addGeometry(Part.LineSegment(Vector(512.1, 286.6, 0), Vector(512.1, 309.4, 0)), False)
sketch4.addConstraint(Sketcher.Constraint("Tangent", 0, 2, 1, 1))
sketch4.addConstraint(Sketcher.Constraint("Tangent", 1, 2, 2, 1))
sketch4.addConstraint(Sketcher.Constraint("Tangent", 2, 2, 3, 1))
sketch4.addConstraint(Sketcher.Constraint("Tangent", 3, 2, 4, 1))
sketch4.addConstraint(Sketcher.Constraint("Tangent", 4, 2, 5, 1))
sketch4.addConstraint(Sketcher.Constraint("Tangent", 5, 2, 6, 1))
sketch4.addConstraint(Sketcher.Constraint("Tangent", 6, 2, 7, 1))
sketch4.addConstraint(Sketcher.Constraint("Tangent", 7, 2, 0, 1))
sketch4.addConstraint(Sketcher.Constraint("Tangent", 8, 2, 9, 2))
sketch4.addConstraint(Sketcher.Constraint("Tangent", 9, 1, 10, 1))
sketch4.addConstraint(Sketcher.Constraint("Tangent", 10, 2, 11, 2))
sketch4.addConstraint(Sketcher.Constraint("Tangent", 11, 1, 12, 1))
sketch4.addConstraint(Sketcher.Constraint("Tangent", 12, 2, 13, 2))
sketch4.addConstraint(Sketcher.Constraint("Tangent", 13, 1, 14, 1))
sketch4.addConstraint(Sketcher.Constraint("Tangent", 14, 2, 15, 2))
sketch4.addConstraint(Sketcher.Constraint("Tangent", 15, 1, 8, 1))
sketch4.addConstraint(Sketcher.Constraint("Tangent", 16, 2, 17, 1))
sketch4.addConstraint(Sketcher.Constraint("Tangent", 17, 2, 18, 1))
sketch4.addConstraint(Sketcher.Constraint("Tangent", 18, 2, 19, 1))
sketch4.addConstraint(Sketcher.Constraint("Tangent", 19, 2, 20, 1))
sketch4.addConstraint(Sketcher.Constraint("Tangent", 20, 2, 21, 1))
sketch4.addConstraint(Sketcher.Constraint("Tangent", 21, 2, 22, 1))
sketch4.addConstraint(Sketcher.Constraint("Tangent", 22, 2, 23, 1))
sketch4.addConstraint(Sketcher.Constraint("Tangent", 23, 2, 16, 1))
sketch4.addConstraint(Sketcher.Constraint("Tangent", 24, 1, 25, 1))
sketch4.addConstraint(Sketcher.Constraint("Tangent", 25, 2, 26, 2))
sketch4.addConstraint(Sketcher.Constraint("Tangent", 26, 1, 27, 1))
sketch4.addConstraint(Sketcher.Constraint("Tangent", 27, 2, 28, 2))
sketch4.addConstraint(Sketcher.Constraint("Tangent", 28, 1, 29, 1))
sketch4.addConstraint(Sketcher.Constraint("Tangent", 29, 2, 30, 2))
sketch4.addConstraint(Sketcher.Constraint("Tangent", 30, 1, 31, 1))
sketch4.addConstraint(Sketcher.Constraint("Tangent", 31, 2, 24, 2))
sketch4.addConstraint(Sketcher.Constraint("Tangent", 32, 2, 33, 1))
sketch4.addConstraint(Sketcher.Constraint("Tangent", 33, 2, 34, 1))
sketch4.addConstraint(Sketcher.Constraint("Tangent", 34, 2, 35, 1))
sketch4.addConstraint(Sketcher.Constraint("Tangent", 35, 2, 36, 1))
sketch4.addConstraint(Sketcher.Constraint("Tangent", 36, 2, 37, 1))
sketch4.addConstraint(Sketcher.Constraint("Tangent", 37, 2, 38, 1))
sketch4.addConstraint(Sketcher.Constraint("Tangent", 38, 2, 39, 1))
sketch4.addConstraint(Sketcher.Constraint("Tangent", 39, 2, 32, 1))
sketch4.addConstraint(Sketcher.Constraint("Tangent", 40, 1, 41, 1))
sketch4.addConstraint(Sketcher.Constraint("Tangent", 41, 2, 42, 2))
sketch4.addConstraint(Sketcher.Constraint("Tangent", 42, 1, 43, 1))
sketch4.addConstraint(Sketcher.Constraint("Tangent", 43, 2, 44, 2))
sketch4.addConstraint(Sketcher.Constraint("Tangent", 44, 1, 45, 1))
sketch4.addConstraint(Sketcher.Constraint("Tangent", 45, 2, 46, 2))
sketch4.addConstraint(Sketcher.Constraint("Tangent", 46, 1, 47, 1))
sketch4.addConstraint(Sketcher.Constraint("Tangent", 47, 2, 40, 2))
sketch4.addConstraint(Sketcher.Constraint("Horizontal", 1))
sketch4.addConstraint(Sketcher.Constraint("Vertical", 3))
sketch4.addConstraint(Sketcher.Constraint("Horizontal", 5))
sketch4.addConstraint(Sketcher.Constraint("Vertical", 7))
sketch4.addConstraint(Sketcher.Constraint("Horizontal", 8))
sketch4.addConstraint(Sketcher.Constraint("Vertical", 10))
sketch4.addConstraint(Sketcher.Constraint("Horizontal", 12))
sketch4.addConstraint(Sketcher.Constraint("Vertical", 14))
sketch4.addConstraint(Sketcher.Constraint("Horizontal", 16))
sketch4.addConstraint(Sketcher.Constraint("Vertical", 18))
sketch4.addConstraint(Sketcher.Constraint("Horizontal", 20))
sketch4.addConstraint(Sketcher.Constraint("Vertical", 22))
sketch4.addConstraint(Sketcher.Constraint("Vertical", 25))
sketch4.addConstraint(Sketcher.Constraint("Horizontal", 27))
sketch4.addConstraint(Sketcher.Constraint("Vertical", 29))
sketch4.addConstraint(Sketcher.Constraint("Horizontal", 31))
sketch4.addConstraint(Sketcher.Constraint("Horizontal", 32))
sketch4.addConstraint(Sketcher.Constraint("Vertical", 34))
sketch4.addConstraint(Sketcher.Constraint("Horizontal", 36))
sketch4.addConstraint(Sketcher.Constraint("Vertical", 38))
sketch4.addConstraint(Sketcher.Constraint("Horizontal", 41))
sketch4.addConstraint(Sketcher.Constraint("Vertical", 43))
sketch4.addConstraint(Sketcher.Constraint("Horizontal", 45))
sketch4.addConstraint(Sketcher.Constraint("Vertical", 47))
sketch4.addConstraint(Sketcher.Constraint("Equal", 0, 2))
sketch4.addConstraint(Sketcher.Constraint("Equal", 2, 4))
sketch4.addConstraint(Sketcher.Constraint("Equal", 4, 6))
sketch4.addConstraint(Sketcher.Constraint("Equal", 6, 9))
sketch4.addConstraint(Sketcher.Constraint("Equal", 9, 11))
sketch4.addConstraint(Sketcher.Constraint("Equal", 11, 13))
sketch4.addConstraint(Sketcher.Constraint("Equal", 13, 15))
sketch4.addConstraint(Sketcher.Constraint("Equal", 15, 17))
sketch4.addConstraint(Sketcher.Constraint("Equal", 17, 19))
sketch4.addConstraint(Sketcher.Constraint("Equal", 19, 21))
sketch4.addConstraint(Sketcher.Constraint("Equal", 21, 23))
sketch4.addConstraint(Sketcher.Constraint("Equal", 23, 24))
sketch4.addConstraint(Sketcher.Constraint("Equal", 24, 26))
sketch4.addConstraint(Sketcher.Constraint("Equal", 26, 28))
sketch4.addConstraint(Sketcher.Constraint("Equal", 28, 30))
sketch4.addConstraint(Sketcher.Constraint("Equal", 30, 33))
sketch4.addConstraint(Sketcher.Constraint("Equal", 33, 35))
sketch4.addConstraint(Sketcher.Constraint("Equal", 35, 37))
sketch4.addConstraint(Sketcher.Constraint("Equal", 37, 39))
sketch4.addConstraint(Sketcher.Constraint("Equal", 39, 40))
sketch4.addConstraint(Sketcher.Constraint("Equal", 40, 42))
sketch4.addConstraint(Sketcher.Constraint("Equal", 42, 44))
sketch4.addConstraint(Sketcher.Constraint("Equal", 44, 46))
sketch4.addConstraint(Sketcher.Constraint("Symmetric", 0, 3, 33, 3, -2))
sketch4.addConstraint(Sketcher.Constraint("Symmetric", 4, 3, 37, 3, -2))
sketch4.addConstraint(Sketcher.Constraint("Symmetric", 13, 3, 40, 3, -2))
sketch4.addConstraint(Sketcher.Constraint("Symmetric", 9, 3, 44, 3, -2))
sketch4.addConstraint(Sketcher.Constraint("Horizontal", 2, 3, 17, 3))
sketch4.addConstraint(Sketcher.Constraint("Horizontal", 6, 3, 19, 3))
sketch4.addConstraint(Sketcher.Constraint("Horizontal", 13, 3, 24, 3))
sketch4.addConstraint(Sketcher.Constraint("Horizontal", 15, 3, 26, 3))
sketch4.addConstraint(Sketcher.Constraint("Equal", 5, 16))
sketch4.addConstraint(Sketcher.Constraint("Equal", 12, 27))
sketch4.addConstraint(Sketcher.Constraint("Equal", 36, 3))
sketch4.addConstraint(Sketcher.Constraint("Equal", 45, 10))
sketch4.addConstraint(Sketcher.Constraint("Radius", 0, Q("2 mm")))
sketch4.addConstraint(Sketcher.Constraint("DistanceX", 1, 1, 1, 2, Q("26 mm")))
sketch4.addConstraint(Sketcher.Constraint("DistanceX", 8, 2, 8, 1, Q("22.8 mm")))
sketch4.addConstraint(Sketcher.Constraint("DistanceY", -1, 1, 0, 3, Q("285 mm")))
sketch4.addConstraint(Sketcher.Constraint("DistanceX", -1, 1, 17, 3, Q("13 mm")))
sketch4.addConstraint(Sketcher.Constraint("DistanceX", 0, 3, -1, 1, Q("538.5 mm")))
sketch4.addConstraint(Sketcher.Constraint("DistanceX", 9, 3, -1, 1, Q("536.9 mm")))
sketch4.addConstraint(Sketcher.Constraint("DistanceY", -1, 1, 9, 3, Q("286.6 mm")))
sketch4.addConstraint(Sketcher.Constraint("DistanceX", -1, 1, 24, 3, Q("11.4 mm")))
pad4 = body.newObject("PartDesign::Pad", "Pad003")
pad4.Profile = sketch4
pad4.Type = "TwoLengths"
pad4.Length = 140
pad4.Length2 = 140
pad4.Reversed = True

# Sketch on XY plane
sketch5 = body.newObject("Sketcher::SketchObject", "Sketch004")
sketch5.AttachmentSupport = (doc.getObject("XY_Plane"), [""])
sketch5.MapMode = "FlatFace"
sketch5.AttachmentOffset = App.Placement(Vector(0, 0, -50), App.Rotation())
sketch5.addGeometry(Part.LineSegment(Vector(-15, -283, 0), Vector(-15, -233, 0)), False)
sketch5.addGeometry(Part.LineSegment(Vector(-15, -233, 0), Vector(15, -233, 0)), False)
sketch5.addGeometry(Part.LineSegment(Vector(15, -233, 0), Vector(15, -283, 0)), False)
sketch5.addGeometry(Part.LineSegment(Vector(15, -283, 0), Vector(-15, -283, 0)), False)
sketch5.addGeometry(Part.LineSegment(Vector(13, -235, 0), Vector(-13, -235, 0)), False)
sketch5.addGeometry(Part.LineSegment(Vector(-13, -235, 0), Vector(-13, -281, 0)), False)
sketch5.addGeometry(Part.LineSegment(Vector(-13, -281, 0), Vector(13, -281, 0)), False)
sketch5.addGeometry(Part.LineSegment(Vector(13, -281, 0), Vector(13, -235, 0)), False)
sketch5.addGeometry(Part.LineSegment(Vector(-540, -283, 0), Vector(-540, -233, 0)), False)
sketch5.addGeometry(Part.LineSegment(Vector(-540, -233, 0), Vector(-510, -233, 0)), False)
sketch5.addGeometry(Part.LineSegment(Vector(-510, -233, 0), Vector(-510, -283, 0)), False)
sketch5.addGeometry(Part.LineSegment(Vector(-510, -283, 0), Vector(-540, -283, 0)), False)
sketch5.addGeometry(Part.LineSegment(Vector(-512, -235, 0), Vector(-539, -235, 0)), False)
sketch5.addGeometry(Part.LineSegment(Vector(-539, -235, 0), Vector(-539, -281, 0)), False)
sketch5.addGeometry(Part.LineSegment(Vector(-539, -281, 0), Vector(-512, -281, 0)), False)
sketch5.addGeometry(Part.LineSegment(Vector(-512, -281, 0), Vector(-512, -235, 0)), False)
sketch5.addGeometry(Part.LineSegment(Vector(510, -283, 0), Vector(510, -233, 0)), False)
sketch5.addGeometry(Part.LineSegment(Vector(510, -233, 0), Vector(540, -233, 0)), False)
sketch5.addGeometry(Part.LineSegment(Vector(540, -233, 0), Vector(540, -283, 0)), False)
sketch5.addGeometry(Part.LineSegment(Vector(540, -283, 0), Vector(510, -283, 0)), False)
sketch5.addGeometry(Part.LineSegment(Vector(539, -235, 0), Vector(512, -235, 0)), False)
sketch5.addGeometry(Part.LineSegment(Vector(512, -235, 0), Vector(512, -281, 0)), False)
sketch5.addGeometry(Part.LineSegment(Vector(512, -281, 0), Vector(539, -281, 0)), False)
sketch5.addGeometry(Part.LineSegment(Vector(539, -281, 0), Vector(539, -235, 0)), False)
sketch5.addConstraint(Sketcher.Constraint("Coincident", 0, 2, 1, 1))
sketch5.addConstraint(Sketcher.Constraint("Coincident", 1, 2, 2, 1))
sketch5.addConstraint(Sketcher.Constraint("Coincident", 2, 2, 3, 1))
sketch5.addConstraint(Sketcher.Constraint("Coincident", 3, 2, 0, 1))
sketch5.addConstraint(Sketcher.Constraint("Coincident", 4, 2, 5, 1))
sketch5.addConstraint(Sketcher.Constraint("Coincident", 5, 2, 6, 1))
sketch5.addConstraint(Sketcher.Constraint("Coincident", 6, 2, 7, 1))
sketch5.addConstraint(Sketcher.Constraint("Coincident", 7, 2, 4, 1))
sketch5.addConstraint(Sketcher.Constraint("Coincident", 8, 2, 9, 1))
sketch5.addConstraint(Sketcher.Constraint("Coincident", 9, 2, 10, 1))
sketch5.addConstraint(Sketcher.Constraint("Coincident", 10, 2, 11, 1))
sketch5.addConstraint(Sketcher.Constraint("Coincident", 11, 2, 8, 1))
sketch5.addConstraint(Sketcher.Constraint("Coincident", 12, 2, 13, 1))
sketch5.addConstraint(Sketcher.Constraint("Coincident", 13, 2, 14, 1))
sketch5.addConstraint(Sketcher.Constraint("Coincident", 14, 2, 15, 1))
sketch5.addConstraint(Sketcher.Constraint("Coincident", 15, 2, 12, 1))
sketch5.addConstraint(Sketcher.Constraint("Coincident", 16, 2, 17, 1))
sketch5.addConstraint(Sketcher.Constraint("Coincident", 17, 2, 18, 1))
sketch5.addConstraint(Sketcher.Constraint("Coincident", 18, 2, 19, 1))
sketch5.addConstraint(Sketcher.Constraint("Coincident", 19, 2, 16, 1))
sketch5.addConstraint(Sketcher.Constraint("Coincident", 20, 2, 21, 1))
sketch5.addConstraint(Sketcher.Constraint("Coincident", 21, 2, 22, 1))
sketch5.addConstraint(Sketcher.Constraint("Coincident", 22, 2, 23, 1))
sketch5.addConstraint(Sketcher.Constraint("Coincident", 23, 2, 20, 1))
sketch5.addConstraint(Sketcher.Constraint("Vertical", 0))
sketch5.addConstraint(Sketcher.Constraint("Horizontal", 1))
sketch5.addConstraint(Sketcher.Constraint("Vertical", 2))
sketch5.addConstraint(Sketcher.Constraint("Horizontal", 3))
sketch5.addConstraint(Sketcher.Constraint("Horizontal", 4))
sketch5.addConstraint(Sketcher.Constraint("Vertical", 5))
sketch5.addConstraint(Sketcher.Constraint("Horizontal", 6))
sketch5.addConstraint(Sketcher.Constraint("Vertical", 7))
sketch5.addConstraint(Sketcher.Constraint("Vertical", 8))
sketch5.addConstraint(Sketcher.Constraint("Horizontal", 9))
sketch5.addConstraint(Sketcher.Constraint("Vertical", 10))
sketch5.addConstraint(Sketcher.Constraint("Horizontal", 11))
sketch5.addConstraint(Sketcher.Constraint("Horizontal", 12))
sketch5.addConstraint(Sketcher.Constraint("Vertical", 13))
sketch5.addConstraint(Sketcher.Constraint("Horizontal", 14))
sketch5.addConstraint(Sketcher.Constraint("Vertical", 15))
sketch5.addConstraint(Sketcher.Constraint("Vertical", 16))
sketch5.addConstraint(Sketcher.Constraint("Horizontal", 17))
sketch5.addConstraint(Sketcher.Constraint("Vertical", 18))
sketch5.addConstraint(Sketcher.Constraint("Horizontal", 19))
sketch5.addConstraint(Sketcher.Constraint("Horizontal", 20))
sketch5.addConstraint(Sketcher.Constraint("Vertical", 21))
sketch5.addConstraint(Sketcher.Constraint("Horizontal", 22))
sketch5.addConstraint(Sketcher.Constraint("Vertical", 23))
sketch5.addConstraint(Sketcher.Constraint("Symmetric", 9, 2, 16, 2, -2))
sketch5.addConstraint(Sketcher.Constraint("Symmetric", 11, 2, 18, 2, -2))
sketch5.addConstraint(Sketcher.Constraint("Symmetric", 15, 2, 20, 2, -2))
sketch5.addConstraint(Sketcher.Constraint("Symmetric", 13, 2, 22, 2, -2))
sketch5.addConstraint(Sketcher.Constraint("Horizontal", 1, 2, 8, 2))
sketch5.addConstraint(Sketcher.Constraint("Horizontal", 3, 2, 10, 2))
sketch5.addConstraint(Sketcher.Constraint("Horizontal", 7, 2, 12, 2))
sketch5.addConstraint(Sketcher.Constraint("Horizontal", 6, 2, 13, 2))
sketch5.addConstraint(Sketcher.Constraint("Equal", 3, 9))
sketch5.addConstraint(Sketcher.Constraint("Equal", 6, 12))
sketch5.addConstraint(Sketcher.Constraint("DistanceX", 1, 1, 1, 2, Q("30 mm")))
sketch5.addConstraint(Sketcher.Constraint("DistanceY", 0, 1, 0, 2, Q("50 mm")))
sketch5.addConstraint(Sketcher.Constraint("DistanceX", 4, 2, 4, 1, Q("26.8 mm")))
sketch5.addConstraint(Sketcher.Constraint("DistanceY", 5, 2, 5, 1, Q("46.8 mm")))
sketch5.addConstraint(Sketcher.Constraint("DistanceX", 0, 2, -1, 1, Q("15 mm")))
sketch5.addConstraint(Sketcher.Constraint("DistanceY", 0, 2, -1, 1, Q("233 mm")))
sketch5.addConstraint(Sketcher.Constraint("DistanceX", 4, 2, -1, 1, Q("13.4 mm")))
sketch5.addConstraint(Sketcher.Constraint("DistanceY", 4, 2, -1, 1, Q("234.6 mm")))
sketch5.addConstraint(Sketcher.Constraint("DistanceX", 8, 2, -1, 1, Q("540.5 mm")))
sketch5.addConstraint(Sketcher.Constraint("DistanceX", 12, 2, -1, 1, Q("538.9 mm")))
pad5 = body.newObject("PartDesign::Pad", "Pad004")
pad5.Profile = sketch5
pad5.Length = 200
pad5.Reversed = True

doc.recompute()
